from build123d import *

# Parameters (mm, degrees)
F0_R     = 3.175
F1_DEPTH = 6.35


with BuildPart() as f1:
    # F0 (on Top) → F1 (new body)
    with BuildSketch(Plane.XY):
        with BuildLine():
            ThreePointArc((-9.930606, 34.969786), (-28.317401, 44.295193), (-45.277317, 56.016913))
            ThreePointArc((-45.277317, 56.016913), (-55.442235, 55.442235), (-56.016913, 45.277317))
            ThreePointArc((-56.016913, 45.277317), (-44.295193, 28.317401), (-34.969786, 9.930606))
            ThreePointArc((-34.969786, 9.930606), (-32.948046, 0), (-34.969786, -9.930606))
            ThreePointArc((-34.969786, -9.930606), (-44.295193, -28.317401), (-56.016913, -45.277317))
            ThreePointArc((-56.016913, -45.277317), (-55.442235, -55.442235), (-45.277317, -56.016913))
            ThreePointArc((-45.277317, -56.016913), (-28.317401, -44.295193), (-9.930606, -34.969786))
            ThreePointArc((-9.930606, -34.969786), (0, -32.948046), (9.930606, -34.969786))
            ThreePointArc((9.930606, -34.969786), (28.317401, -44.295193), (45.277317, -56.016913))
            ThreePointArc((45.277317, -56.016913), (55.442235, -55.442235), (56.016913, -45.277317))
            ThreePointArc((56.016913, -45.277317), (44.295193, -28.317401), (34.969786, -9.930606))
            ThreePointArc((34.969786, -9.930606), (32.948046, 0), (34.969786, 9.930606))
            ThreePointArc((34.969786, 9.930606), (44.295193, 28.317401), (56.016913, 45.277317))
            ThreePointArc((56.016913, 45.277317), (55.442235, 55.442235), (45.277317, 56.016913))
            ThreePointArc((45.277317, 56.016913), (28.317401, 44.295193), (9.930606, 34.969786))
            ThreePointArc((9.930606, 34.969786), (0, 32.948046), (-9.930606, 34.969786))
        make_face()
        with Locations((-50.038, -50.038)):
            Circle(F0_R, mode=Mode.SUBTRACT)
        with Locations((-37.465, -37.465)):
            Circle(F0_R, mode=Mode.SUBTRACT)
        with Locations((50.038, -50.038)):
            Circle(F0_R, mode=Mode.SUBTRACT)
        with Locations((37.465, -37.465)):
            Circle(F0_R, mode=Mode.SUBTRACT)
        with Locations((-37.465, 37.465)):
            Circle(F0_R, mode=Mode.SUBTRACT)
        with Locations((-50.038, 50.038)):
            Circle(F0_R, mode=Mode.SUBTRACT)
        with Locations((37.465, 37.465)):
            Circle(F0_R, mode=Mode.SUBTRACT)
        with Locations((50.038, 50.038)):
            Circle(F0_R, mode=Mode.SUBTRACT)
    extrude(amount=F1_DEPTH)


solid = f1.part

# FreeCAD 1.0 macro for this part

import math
import FreeCAD as App
import Part
import Sketcher
Q = App.Units.Quantity

doc = App.newDocument("Part")
params = doc.addObject("Spreadsheet::Sheet", "Params")
for row, (alias, value) in enumerate([
    ("sketch1_diameter", "0.25 in"),
    ("pad1_length", "0.25 in"),
], start=1):
    params.set(f"A{row}", alias)
    params.set(f"B{row}", "=" + value)
    params.setAlias(f"B{row}", alias)

body = doc.addObject("PartDesign::Body", "Body")

# Sketch on XY plane
sketch1 = body.newObject("Sketcher::SketchObject", "Sketch")
sketch1.AttachmentSupport = (doc.getObject("XY_Plane"), [""])
sketch1.MapMode = "FlatFace"
sketch1.addGeometry([
    Part.ArcOfCircle(Part.Circle(App.Vector(49.653012, 175.23932, 0), App.Vector(0, 0, 1), 152.399966), math.radians(-128.528406), math.radians(-113.014789)),  # 0
    Part.ArcOfCircle(Part.Circle(App.Vector(-50.038, 50.038, 0), App.Vector(0, 0, 1), 7.642742), math.radians(51.471594), math.radians(218.528406)),  # 1
    Part.ArcOfCircle(Part.Circle(App.Vector(-175.23932, -49.653012, 0), App.Vector(0, 0, 1), 152.399966), math.radians(23.014789), math.radians(38.528406)),  # 2
    Part.ArcOfCircle(Part.Circle(App.Vector(-58.34804, 0, 0), App.Vector(0, 0, 1), 25.399994), math.radians(-23.014796), math.radians(23.014796)),  # 3
    Part.ArcOfCircle(Part.Circle(App.Vector(-175.23932, 49.653012, 0), App.Vector(0, 0, 1), 152.399966), math.radians(-38.528406), math.radians(-23.014789)),  # 4
    Part.ArcOfCircle(Part.Circle(App.Vector(-50.038, -50.038, 0), App.Vector(0, 0, 1), 7.642742), math.radians(141.471594), math.radians(308.528406)),  # 5
    Part.ArcOfCircle(Part.Circle(App.Vector(49.653012, -175.23932, 0), App.Vector(0, 0, 1), 152.399966), math.radians(113.014789), math.radians(128.528406)),  # 6
    Part.ArcOfCircle(Part.Circle(App.Vector(0, -58.34804, 0), App.Vector(0, 0, 1), 25.399994), math.radians(66.985204), math.radians(113.014796)),  # 7
    Part.ArcOfCircle(Part.Circle(App.Vector(-49.653012, -175.23932, 0), App.Vector(0, 0, 1), 152.399966), math.radians(51.471594), math.radians(66.985211)),  # 8
    Part.ArcOfCircle(Part.Circle(App.Vector(50.038, -50.038, 0), App.Vector(0, 0, 1), 7.642742), math.radians(-128.528406), math.radians(38.528406)),  # 9
    Part.ArcOfCircle(Part.Circle(App.Vector(175.23932, 49.653012, 0), App.Vector(0, 0, 1), 152.399966), math.radians(-156.985211), math.radians(-141.471594)),  # 10
    Part.ArcOfCircle(Part.Circle(App.Vector(58.34804, 0, 0), App.Vector(0, 0, 1), 25.399994), math.radians(156.985204), math.radians(203.014796)),  # 11
    Part.ArcOfCircle(Part.Circle(App.Vector(175.23932, -49.653012, 0), App.Vector(0, 0, 1), 152.399966), math.radians(141.471594), math.radians(156.985211)),  # 12
    Part.ArcOfCircle(Part.Circle(App.Vector(50.038, 50.038, 0), App.Vector(0, 0, 1), 7.642742), math.radians(-38.528406), math.radians(128.528406)),  # 13
    Part.ArcOfCircle(Part.Circle(App.Vector(-49.653012, 175.23932, 0), App.Vector(0, 0, 1), 152.399966), math.radians(-66.985211), math.radians(-51.471594)),  # 14
    Part.ArcOfCircle(Part.Circle(App.Vector(0, 58.34804, 0), App.Vector(0, 0, 1), 25.399994), math.radians(-113.014796), math.radians(-66.985204)),  # 15
    Part.Circle(App.Vector(-50.038, -50.038, 0), App.Vector(0, 0, 1), 3.175),  # 16
    Part.Circle(App.Vector(-37.465, -37.465, 0), App.Vector(0, 0, 1), 3.175),  # 17
    Part.Circle(App.Vector(50.038, -50.038, 0), App.Vector(0, 0, 1), 3.175),  # 18
    Part.Circle(App.Vector(37.465, -37.465, 0), App.Vector(0, 0, 1), 3.175),  # 19
    Part.Circle(App.Vector(-37.465, 37.465, 0), App.Vector(0, 0, 1), 3.175),  # 20
    Part.Circle(App.Vector(-50.038, 50.038, 0), App.Vector(0, 0, 1), 3.175),  # 21
    Part.Circle(App.Vector(37.465, 37.465, 0), App.Vector(0, 0, 1), 3.175),  # 22
    Part.Circle(App.Vector(50.038, 50.038, 0), App.Vector(0, 0, 1), 3.175),  # 23
], False)
sketch1.addConstraint([
    Sketcher.Constraint("Tangent", 0, 1, 1, 1),
    Sketcher.Constraint("Tangent", 1, 2, 2, 2),
    Sketcher.Constraint("Tangent", 2, 1, 3, 2),
    Sketcher.Constraint("Tangent", 3, 1, 4, 2),
    Sketcher.Constraint("Tangent", 4, 1, 5, 1),
    Sketcher.Constraint("Tangent", 5, 2, 6, 2),
    Sketcher.Constraint("Tangent", 6, 1, 7, 2),
    Sketcher.Constraint("Tangent", 7, 1, 8, 2),
    Sketcher.Constraint("Tangent", 8, 1, 9, 1),
    Sketcher.Constraint("Tangent", 9, 2, 10, 2),
    Sketcher.Constraint("Tangent", 10, 1, 11, 2),
    Sketcher.Constraint("Tangent", 11, 1, 12, 2),
    Sketcher.Constraint("Tangent", 12, 1, 13, 1),
    Sketcher.Constraint("Tangent", 13, 2, 14, 2),
    Sketcher.Constraint("Tangent", 14, 1, 15, 2),
    Sketcher.Constraint("Tangent", 15, 1, 0, 2),
    Sketcher.Constraint("Coincident", 16, 3, 5, 3),
    Sketcher.Constraint("Coincident", 18, 3, 9, 3),
    Sketcher.Constraint("Coincident", 21, 3, 1, 3),
    Sketcher.Constraint("Coincident", 23, 3, 13, 3),
    Sketcher.Constraint("Equal", 0, 2),
    Sketcher.Constraint("Equal", 2, 4),
    Sketcher.Constraint("Equal", 1, 5),
    Sketcher.Constraint("Equal", 4, 6),
    Sketcher.Constraint("Equal", 3, 7),
    Sketcher.Constraint("Equal", 6, 8),
    Sketcher.Constraint("Equal", 5, 9),
    Sketcher.Constraint("Equal", 8, 10),
    Sketcher.Constraint("Equal", 7, 11),
    Sketcher.Constraint("Equal", 10, 12),
    Sketcher.Constraint("Equal", 9, 13),
    Sketcher.Constraint("Equal", 12, 14),
    Sketcher.Constraint("Equal", 11, 15),
    Sketcher.Constraint("Equal", 16, 17),
    Sketcher.Constraint("Equal", 17, 18),
    Sketcher.Constraint("Equal", 18, 19),
    Sketcher.Constraint("Equal", 19, 20),
    Sketcher.Constraint("Equal", 20, 21),
    Sketcher.Constraint("Equal", 21, 22),
    Sketcher.Constraint("Equal", 22, 23),
    Sketcher.Constraint("Symmetric", 0, 3, 8, 3, -1, 1),
    Sketcher.Constraint("Symmetric", 2, 3, 10, 3, -1, 1),
    Sketcher.Constraint("Symmetric", 4, 3, 12, 3, -1, 1),
    Sketcher.Constraint("Symmetric", 6, 3, 14, 3, -1, 1),
    Sketcher.Constraint("Symmetric", 19, 3, 20, 3, -1, 1),
    Sketcher.Constraint("Symmetric", 17, 3, 22, 3, -1, 1),
    Sketcher.Constraint("Symmetric", 6, 3, 8, 3, -2),
    Sketcher.Constraint("Symmetric", 4, 3, 10, 3, -2),
    Sketcher.Constraint("Symmetric", 17, 3, 19, 3, -2),
    Sketcher.Constraint("Diameter", 16, Q("0.25 in")),
    Sketcher.Constraint("DistanceX", 1, 3, -1, 1, Q("1.97 in")),
    Sketcher.Constraint("DistanceY", -1, 1, 1, 3, Q("1.97 in")),
    Sketcher.Constraint("DistanceX", 17, 3, 19, 3, Q("2.95 in")),
    Sketcher.Constraint("DistanceY", 17, 3, 20, 3, Q("2.95 in")),
    Sketcher.Constraint("Radius", 1, Q("7.642742 mm")),
    Sketcher.Constraint("Radius", 0, Q("152.399966 mm")),
    Sketcher.Constraint("Radius", 3, Q("25.399994 mm")),
    Sketcher.Constraint("DistanceX", -1, 1, 0, 3, Q("49.653012 mm")),
    Sketcher.Constraint("DistanceX", 2, 3, -1, 1, Q("175.23932 mm")),
])
sketch1.setExpression("Constraints[49]", "Params.sketch1_diameter")
pad1 = body.newObject("PartDesign::Pad", "Pad")
pad1.Profile = sketch1
pad1.setExpression("Length", "Params.pad1_length")

doc.recompute()
